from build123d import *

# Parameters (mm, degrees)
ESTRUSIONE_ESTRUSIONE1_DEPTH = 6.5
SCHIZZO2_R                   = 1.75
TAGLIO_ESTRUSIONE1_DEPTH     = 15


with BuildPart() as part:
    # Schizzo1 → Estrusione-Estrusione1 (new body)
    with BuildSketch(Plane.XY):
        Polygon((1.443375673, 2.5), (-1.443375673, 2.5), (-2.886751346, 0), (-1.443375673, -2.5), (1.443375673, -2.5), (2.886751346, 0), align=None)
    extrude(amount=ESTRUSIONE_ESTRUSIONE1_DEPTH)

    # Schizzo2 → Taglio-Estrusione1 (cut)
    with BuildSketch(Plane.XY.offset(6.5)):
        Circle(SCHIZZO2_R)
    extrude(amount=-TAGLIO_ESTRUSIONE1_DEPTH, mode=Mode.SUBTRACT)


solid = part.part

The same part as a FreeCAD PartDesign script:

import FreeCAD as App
import Part
import Sketcher
Q = App.Units.Quantity


def add_polygon(sketch, points):
    """Adds a closed chain of lines whose ends are joined by coincident constraints."""
    first, n = sketch.GeometryCount, len(points)
    for a, b in zip(points, points[1:] + points[:1]):
        sketch.addGeometry(Part.LineSegment(App.Vector(*a, 0), App.Vector(*b, 0)), False)
    for i in range(n):
        sketch.addConstraint(Sketcher.Constraint("Coincident", first + i, 2, first + (i + 1) % n, 1))

doc = App.newDocument("Part")
params = doc.addObject("Spreadsheet::Sheet", "Params")
for row, (alias, value) in enumerate([
    ("pad1_length", "6.5 mm"),
    ("sketch2_diameter", "3.5 mm"),
    ("pocket1_length", "15 mm"),
], start=1):
    params.set(f"A{row}", alias)
    params.set(f"B{row}", "=" + value)
    params.setAlias(f"B{row}", alias)

body = doc.addObject("PartDesign::Body", "Body")

sketch1 = body.newObject("Sketcher::SketchObject", "Sketch")
sketch1.AttachmentSupport = (doc.getObject("XY_Plane"), [""])
sketch1.MapMode = "FlatFace"
add_polygon(sketch1, [(1.4, 2.5), (-1.4, 2.5), (-2.9, 0), (-1.4, -2.5), (1.4, -2.5), (2.9, 0)])
sketch1.addConstraint(Sketcher.Constraint("Horizontal", 0))
sketch1.addConstraint(Sketcher.Constraint("Horizontal", 3))
sketch1.addConstraint(Sketcher.Constraint("Symmetric", 0, 2, 3, 2, -1, 1))
sketch1.addConstraint(Sketcher.Constraint("Symmetric", 1, 2, 4, 2, -1, 1))
sketch1.addConstraint(Sketcher.Constraint("PointOnObject", 1, 2, -1))
sketch1.addConstraint(Sketcher.Constraint("Parallel", 2, 5))
sketch1.addConstraint(Sketcher.Constraint("Vertical", 0, 2, 2, 2))
sketch1.addConstraint(Sketcher.Constraint("Angle", 1, Q("-120 deg")))
sketch1.addConstraint(Sketcher.Constraint("DistanceY", 2, 2, 0, 2, 5.0))
sketch1.addConstraint(Sketcher.Constraint("DistanceX", 0, 2, 0, 1, 2.886751))
pad1 = body.newObject("PartDesign::Pad", "Pad")
pad1.Profile = sketch1
pad1.setExpression("Length", "Params.pad1_length")

sketch2 = body.newObject("Sketcher::SketchObject", "Sketch001")
sketch2.AttachmentSupport = (doc.getObject("XY_Plane"), [""])
sketch2.MapMode = "FlatFace"
sketch2.AttachmentOffset = App.Placement(App.Vector(0, 0, 6.5), App.Rotation())
sketch2.addGeometry(Part.Circle(App.Vector(0, 0, 0), App.Vector(0, 0, 1), 1.8), False)
sketch2.addConstraint(Sketcher.Constraint("Coincident", 0, 3, -1, 1))
sketch2.addConstraint(Sketcher.Constraint("Diameter", 0, 3.5))
sketch2.setExpression("Constraints[1]", "Params.sketch2_diameter")
pocket1 = body.newObject("PartDesign::Pocket", "Pocket")
pocket1.Profile = sketch2
pocket1.setExpression("Length", "Params.pocket1_length")

doc.recompute()
